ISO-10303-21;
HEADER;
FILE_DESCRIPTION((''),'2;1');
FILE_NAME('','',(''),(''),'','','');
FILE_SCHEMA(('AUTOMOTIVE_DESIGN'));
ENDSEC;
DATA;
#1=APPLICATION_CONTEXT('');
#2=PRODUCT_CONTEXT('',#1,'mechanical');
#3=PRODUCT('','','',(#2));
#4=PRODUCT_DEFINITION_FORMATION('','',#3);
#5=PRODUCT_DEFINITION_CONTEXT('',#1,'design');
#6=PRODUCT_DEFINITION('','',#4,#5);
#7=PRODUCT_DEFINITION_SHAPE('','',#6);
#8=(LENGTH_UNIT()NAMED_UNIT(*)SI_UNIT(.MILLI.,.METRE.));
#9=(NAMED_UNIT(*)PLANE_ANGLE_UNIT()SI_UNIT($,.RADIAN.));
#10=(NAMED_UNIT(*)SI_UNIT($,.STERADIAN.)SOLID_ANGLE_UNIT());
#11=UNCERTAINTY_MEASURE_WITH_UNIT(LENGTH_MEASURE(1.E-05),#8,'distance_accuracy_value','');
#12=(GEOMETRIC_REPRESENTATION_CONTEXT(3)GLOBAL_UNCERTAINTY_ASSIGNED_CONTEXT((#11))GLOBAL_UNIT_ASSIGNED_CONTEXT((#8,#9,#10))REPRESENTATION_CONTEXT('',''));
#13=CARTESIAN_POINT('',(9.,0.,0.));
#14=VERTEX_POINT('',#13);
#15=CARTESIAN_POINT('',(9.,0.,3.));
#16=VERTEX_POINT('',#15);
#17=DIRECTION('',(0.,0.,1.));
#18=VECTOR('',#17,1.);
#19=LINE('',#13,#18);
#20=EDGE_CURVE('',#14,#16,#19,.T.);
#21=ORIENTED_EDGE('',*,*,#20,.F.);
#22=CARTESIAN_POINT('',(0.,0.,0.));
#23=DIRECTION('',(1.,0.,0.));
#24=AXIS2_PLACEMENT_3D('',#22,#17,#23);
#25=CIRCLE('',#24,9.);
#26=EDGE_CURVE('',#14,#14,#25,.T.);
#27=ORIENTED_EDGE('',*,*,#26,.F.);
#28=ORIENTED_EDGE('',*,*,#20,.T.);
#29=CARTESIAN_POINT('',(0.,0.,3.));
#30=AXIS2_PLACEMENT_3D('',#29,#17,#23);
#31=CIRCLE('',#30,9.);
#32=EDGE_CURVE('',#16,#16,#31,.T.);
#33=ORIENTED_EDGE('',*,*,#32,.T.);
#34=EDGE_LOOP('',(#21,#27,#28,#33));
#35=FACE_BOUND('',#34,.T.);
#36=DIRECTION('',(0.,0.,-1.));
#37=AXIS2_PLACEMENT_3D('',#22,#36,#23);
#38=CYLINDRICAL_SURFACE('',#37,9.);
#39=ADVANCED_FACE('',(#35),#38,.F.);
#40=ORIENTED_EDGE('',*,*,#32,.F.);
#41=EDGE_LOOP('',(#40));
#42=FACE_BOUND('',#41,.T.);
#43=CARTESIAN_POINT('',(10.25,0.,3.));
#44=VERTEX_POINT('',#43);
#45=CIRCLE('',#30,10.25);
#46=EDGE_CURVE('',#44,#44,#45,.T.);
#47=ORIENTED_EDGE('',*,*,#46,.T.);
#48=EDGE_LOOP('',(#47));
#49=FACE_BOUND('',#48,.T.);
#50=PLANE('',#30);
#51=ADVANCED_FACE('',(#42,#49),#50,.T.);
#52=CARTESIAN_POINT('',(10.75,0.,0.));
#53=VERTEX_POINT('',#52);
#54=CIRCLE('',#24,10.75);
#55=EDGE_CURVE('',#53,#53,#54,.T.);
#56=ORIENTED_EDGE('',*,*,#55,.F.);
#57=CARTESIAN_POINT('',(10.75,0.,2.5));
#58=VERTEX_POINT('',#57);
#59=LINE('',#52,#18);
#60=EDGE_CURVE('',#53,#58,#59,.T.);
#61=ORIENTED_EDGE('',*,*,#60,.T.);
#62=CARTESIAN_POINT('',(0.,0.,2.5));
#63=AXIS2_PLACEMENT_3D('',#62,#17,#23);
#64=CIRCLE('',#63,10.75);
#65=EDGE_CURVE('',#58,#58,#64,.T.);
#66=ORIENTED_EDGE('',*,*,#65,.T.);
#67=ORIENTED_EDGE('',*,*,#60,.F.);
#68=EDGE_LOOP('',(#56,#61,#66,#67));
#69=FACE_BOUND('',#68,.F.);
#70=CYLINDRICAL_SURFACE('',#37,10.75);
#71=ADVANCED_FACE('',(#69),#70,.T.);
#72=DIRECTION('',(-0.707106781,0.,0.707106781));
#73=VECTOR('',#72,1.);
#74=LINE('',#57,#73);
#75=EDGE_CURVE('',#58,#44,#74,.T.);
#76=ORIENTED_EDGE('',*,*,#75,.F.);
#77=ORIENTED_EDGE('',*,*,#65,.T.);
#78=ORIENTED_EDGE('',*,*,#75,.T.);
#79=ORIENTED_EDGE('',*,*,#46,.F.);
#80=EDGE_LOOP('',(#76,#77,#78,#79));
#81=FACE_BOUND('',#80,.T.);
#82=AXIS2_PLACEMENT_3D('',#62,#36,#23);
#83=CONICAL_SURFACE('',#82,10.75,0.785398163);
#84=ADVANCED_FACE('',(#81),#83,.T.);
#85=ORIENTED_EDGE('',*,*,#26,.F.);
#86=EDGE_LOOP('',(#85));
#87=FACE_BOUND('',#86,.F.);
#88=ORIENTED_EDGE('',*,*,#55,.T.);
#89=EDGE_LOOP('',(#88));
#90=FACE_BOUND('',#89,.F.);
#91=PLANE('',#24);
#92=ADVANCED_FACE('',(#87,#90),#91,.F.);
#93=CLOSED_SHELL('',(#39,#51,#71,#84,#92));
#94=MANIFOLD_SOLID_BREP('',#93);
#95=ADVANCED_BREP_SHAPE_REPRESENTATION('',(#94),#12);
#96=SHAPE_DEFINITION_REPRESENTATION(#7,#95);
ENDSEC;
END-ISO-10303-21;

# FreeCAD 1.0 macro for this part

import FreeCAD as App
import Part
import Sketcher
Q = App.Units.Quantity


def edges_at(feature, points):
    """Names of the edges that pass closest to the given points."""
    edges = feature.Shape.Edges
    near = lambda p: min(range(len(edges)), key=lambda i: edges[i].distToShape(Part.Vertex(*p))[0])
    return sorted({f"Edge{near(p) + 1}" for p in points})

doc = App.newDocument("Part")
body = doc.addObject("PartDesign::Body", "Body")

# Sketch on XY plane
sketch1 = body.newObject("Sketcher::SketchObject", "Sketch")
sketch1.AttachmentSupport = (doc.getObject("XY_Plane"), [""])
sketch1.MapMode = "FlatFace"
sketch1.addGeometry([
    Part.Circle(App.Vector(0, 0, 0), App.Vector(0, 0, 1), 10.75),
    Part.Circle(App.Vector(0, 0, 0), App.Vector(0, 0, 1), 9),
], False)
sketch1.addConstraint([
    Sketcher.Constraint("Coincident", 0, 3, -1, 1),
    Sketcher.Constraint("Coincident", 1, 3, -1, 1),
    Sketcher.Constraint("Diameter", 1, Q("18 mm")),
    Sketcher.Constraint("Diameter", 0, Q("21.5 mm")),
])
pad1 = body.newObject("PartDesign::Pad", "Pad")
pad1.Profile = sketch1
pad1.Length = 3
doc.recompute()

chamfer = body.newObject("PartDesign::Chamfer", "Chamfer")
chamfer.Base = (pad1, edges_at(pad1, [(-10.75, 0, 3)]))
chamfer.Size = 0.5

doc.recompute()
